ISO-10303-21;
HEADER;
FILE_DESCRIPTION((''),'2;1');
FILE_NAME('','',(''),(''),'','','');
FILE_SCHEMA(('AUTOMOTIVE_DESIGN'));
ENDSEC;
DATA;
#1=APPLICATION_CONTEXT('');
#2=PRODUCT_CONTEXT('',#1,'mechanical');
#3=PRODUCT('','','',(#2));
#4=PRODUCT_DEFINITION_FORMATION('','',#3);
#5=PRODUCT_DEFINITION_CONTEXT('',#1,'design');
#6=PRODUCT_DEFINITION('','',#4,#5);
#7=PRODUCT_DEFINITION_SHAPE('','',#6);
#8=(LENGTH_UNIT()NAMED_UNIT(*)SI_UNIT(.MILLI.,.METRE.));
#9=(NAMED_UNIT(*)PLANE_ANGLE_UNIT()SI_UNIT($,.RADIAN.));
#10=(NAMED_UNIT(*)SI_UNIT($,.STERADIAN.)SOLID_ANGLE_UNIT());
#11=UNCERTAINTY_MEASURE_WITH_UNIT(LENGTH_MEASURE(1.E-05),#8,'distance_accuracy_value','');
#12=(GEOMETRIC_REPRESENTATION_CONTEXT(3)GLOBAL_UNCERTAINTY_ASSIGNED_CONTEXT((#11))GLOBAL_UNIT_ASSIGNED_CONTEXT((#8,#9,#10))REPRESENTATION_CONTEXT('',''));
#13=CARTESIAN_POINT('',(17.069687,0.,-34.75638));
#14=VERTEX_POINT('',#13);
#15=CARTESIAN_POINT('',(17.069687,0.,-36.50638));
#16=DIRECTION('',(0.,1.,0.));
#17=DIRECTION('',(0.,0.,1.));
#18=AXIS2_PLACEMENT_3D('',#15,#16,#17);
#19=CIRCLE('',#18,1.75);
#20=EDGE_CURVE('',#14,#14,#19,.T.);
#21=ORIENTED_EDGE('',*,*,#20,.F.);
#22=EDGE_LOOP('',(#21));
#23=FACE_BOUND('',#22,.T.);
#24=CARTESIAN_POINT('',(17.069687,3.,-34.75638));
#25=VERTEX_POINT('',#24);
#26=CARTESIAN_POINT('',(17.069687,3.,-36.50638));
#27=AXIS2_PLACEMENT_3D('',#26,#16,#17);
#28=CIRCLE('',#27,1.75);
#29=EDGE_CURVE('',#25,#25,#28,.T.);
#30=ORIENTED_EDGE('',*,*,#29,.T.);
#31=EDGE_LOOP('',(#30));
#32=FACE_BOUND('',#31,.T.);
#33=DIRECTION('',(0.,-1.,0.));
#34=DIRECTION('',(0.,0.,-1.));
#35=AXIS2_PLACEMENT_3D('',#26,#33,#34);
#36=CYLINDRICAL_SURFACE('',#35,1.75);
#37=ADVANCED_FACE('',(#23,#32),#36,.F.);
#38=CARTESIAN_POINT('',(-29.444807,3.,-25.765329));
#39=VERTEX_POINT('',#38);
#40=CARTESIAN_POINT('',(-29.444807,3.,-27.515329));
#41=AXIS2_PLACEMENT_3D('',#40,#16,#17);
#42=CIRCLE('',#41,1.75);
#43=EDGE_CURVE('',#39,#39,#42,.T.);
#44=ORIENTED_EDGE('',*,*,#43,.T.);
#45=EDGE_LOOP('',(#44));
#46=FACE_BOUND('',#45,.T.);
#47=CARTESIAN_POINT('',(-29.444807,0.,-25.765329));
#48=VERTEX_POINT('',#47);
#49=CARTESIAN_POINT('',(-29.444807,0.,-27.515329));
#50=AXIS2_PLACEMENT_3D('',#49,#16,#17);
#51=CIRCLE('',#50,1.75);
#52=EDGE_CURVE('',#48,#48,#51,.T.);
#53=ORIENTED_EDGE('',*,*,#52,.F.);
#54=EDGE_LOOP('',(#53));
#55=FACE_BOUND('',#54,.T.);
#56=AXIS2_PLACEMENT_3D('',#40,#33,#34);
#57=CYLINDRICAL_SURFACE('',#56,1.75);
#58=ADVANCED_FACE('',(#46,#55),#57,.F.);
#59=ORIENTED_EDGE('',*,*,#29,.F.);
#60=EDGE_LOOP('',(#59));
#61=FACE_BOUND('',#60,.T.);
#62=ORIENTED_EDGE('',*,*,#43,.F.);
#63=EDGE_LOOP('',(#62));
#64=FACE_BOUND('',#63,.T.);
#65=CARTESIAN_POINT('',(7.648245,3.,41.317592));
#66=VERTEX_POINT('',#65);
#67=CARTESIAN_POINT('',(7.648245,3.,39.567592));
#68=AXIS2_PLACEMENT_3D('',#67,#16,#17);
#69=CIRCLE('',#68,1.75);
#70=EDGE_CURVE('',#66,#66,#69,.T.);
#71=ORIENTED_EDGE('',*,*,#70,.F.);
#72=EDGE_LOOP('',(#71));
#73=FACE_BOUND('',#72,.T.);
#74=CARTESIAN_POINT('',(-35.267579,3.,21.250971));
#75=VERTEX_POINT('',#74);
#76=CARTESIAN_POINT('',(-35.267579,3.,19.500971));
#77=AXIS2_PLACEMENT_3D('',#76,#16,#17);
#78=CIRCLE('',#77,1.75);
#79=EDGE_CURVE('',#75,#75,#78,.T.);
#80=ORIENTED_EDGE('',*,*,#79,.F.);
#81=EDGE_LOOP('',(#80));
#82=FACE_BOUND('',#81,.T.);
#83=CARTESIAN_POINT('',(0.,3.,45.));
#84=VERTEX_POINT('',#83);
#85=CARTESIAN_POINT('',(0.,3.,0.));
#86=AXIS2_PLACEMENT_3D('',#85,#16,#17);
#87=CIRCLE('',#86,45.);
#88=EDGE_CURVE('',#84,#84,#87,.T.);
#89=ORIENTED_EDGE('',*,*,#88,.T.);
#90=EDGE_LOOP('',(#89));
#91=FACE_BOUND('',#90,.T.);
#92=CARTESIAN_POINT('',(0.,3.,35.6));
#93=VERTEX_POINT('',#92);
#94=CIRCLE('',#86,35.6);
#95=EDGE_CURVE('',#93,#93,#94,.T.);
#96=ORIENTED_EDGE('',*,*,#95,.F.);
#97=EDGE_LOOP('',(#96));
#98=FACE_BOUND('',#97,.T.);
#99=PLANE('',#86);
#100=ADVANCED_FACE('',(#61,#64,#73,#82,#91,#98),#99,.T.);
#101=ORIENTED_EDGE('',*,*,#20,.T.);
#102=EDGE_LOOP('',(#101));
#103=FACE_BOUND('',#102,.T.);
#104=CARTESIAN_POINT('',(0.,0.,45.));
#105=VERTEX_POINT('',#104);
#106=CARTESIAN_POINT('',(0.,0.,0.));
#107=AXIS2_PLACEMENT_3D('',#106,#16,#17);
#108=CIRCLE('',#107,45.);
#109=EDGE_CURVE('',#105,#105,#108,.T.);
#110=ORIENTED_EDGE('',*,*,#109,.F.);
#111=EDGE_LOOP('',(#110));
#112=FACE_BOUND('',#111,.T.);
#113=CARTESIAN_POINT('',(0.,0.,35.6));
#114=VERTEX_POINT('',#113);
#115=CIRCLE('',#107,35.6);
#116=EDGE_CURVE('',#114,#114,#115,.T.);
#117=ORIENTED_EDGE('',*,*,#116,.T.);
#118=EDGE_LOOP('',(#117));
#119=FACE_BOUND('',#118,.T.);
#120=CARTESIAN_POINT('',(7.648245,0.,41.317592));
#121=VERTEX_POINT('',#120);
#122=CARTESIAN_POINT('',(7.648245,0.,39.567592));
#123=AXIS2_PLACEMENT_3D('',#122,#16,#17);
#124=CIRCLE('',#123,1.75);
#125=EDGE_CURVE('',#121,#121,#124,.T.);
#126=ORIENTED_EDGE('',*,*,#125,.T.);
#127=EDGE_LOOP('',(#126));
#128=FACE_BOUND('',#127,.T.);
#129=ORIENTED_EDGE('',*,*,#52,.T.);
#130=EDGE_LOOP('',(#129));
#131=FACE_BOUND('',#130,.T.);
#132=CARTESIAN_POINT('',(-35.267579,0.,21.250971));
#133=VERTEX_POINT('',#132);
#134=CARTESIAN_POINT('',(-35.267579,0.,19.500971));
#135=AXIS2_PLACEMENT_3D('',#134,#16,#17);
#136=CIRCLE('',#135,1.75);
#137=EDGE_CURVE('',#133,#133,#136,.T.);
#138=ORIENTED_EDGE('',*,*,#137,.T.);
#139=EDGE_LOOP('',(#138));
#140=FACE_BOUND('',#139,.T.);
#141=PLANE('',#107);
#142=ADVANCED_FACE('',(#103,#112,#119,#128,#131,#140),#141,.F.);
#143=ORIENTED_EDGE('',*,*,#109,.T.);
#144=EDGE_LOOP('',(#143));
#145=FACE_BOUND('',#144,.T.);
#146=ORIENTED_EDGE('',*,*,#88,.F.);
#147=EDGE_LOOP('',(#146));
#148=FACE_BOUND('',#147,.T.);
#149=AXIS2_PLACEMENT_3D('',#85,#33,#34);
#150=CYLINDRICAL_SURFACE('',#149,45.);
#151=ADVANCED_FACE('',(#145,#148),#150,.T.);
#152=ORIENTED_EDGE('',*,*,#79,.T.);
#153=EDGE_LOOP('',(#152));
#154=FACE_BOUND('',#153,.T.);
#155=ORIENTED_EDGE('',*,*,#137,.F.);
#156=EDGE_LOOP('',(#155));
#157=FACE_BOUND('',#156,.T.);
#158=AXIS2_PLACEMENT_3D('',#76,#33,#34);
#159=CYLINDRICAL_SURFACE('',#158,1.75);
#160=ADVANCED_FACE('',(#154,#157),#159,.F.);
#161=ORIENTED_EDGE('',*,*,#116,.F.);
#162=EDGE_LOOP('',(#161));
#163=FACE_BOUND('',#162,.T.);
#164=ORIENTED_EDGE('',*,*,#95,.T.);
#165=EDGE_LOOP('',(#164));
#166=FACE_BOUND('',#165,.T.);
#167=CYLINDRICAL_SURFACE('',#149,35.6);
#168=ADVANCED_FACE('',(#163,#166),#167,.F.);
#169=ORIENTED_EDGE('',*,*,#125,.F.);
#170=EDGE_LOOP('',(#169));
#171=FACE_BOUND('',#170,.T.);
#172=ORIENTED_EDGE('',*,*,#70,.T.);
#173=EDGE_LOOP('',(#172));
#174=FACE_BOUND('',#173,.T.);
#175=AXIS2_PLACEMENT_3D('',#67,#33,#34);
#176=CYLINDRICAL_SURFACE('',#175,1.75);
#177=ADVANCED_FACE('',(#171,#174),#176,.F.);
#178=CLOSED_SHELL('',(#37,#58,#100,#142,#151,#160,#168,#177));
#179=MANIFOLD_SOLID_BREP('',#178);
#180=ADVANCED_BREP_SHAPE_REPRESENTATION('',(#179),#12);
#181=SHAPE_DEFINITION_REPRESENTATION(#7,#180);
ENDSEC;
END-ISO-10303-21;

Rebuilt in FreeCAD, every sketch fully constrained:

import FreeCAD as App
import Part
import Sketcher

doc = App.newDocument("Part")
body = doc.addObject("PartDesign::Body", "Body")

# Sketch on XZ plane
sketch1 = doc.addObject("Sketcher::SketchObject", "Sketch")
body.addObject(sketch1)
sketch1.AttachmentSupport = (doc.XZ_Plane, [""])
sketch1.MapMode = "FlatFace"
sketch1.addGeometry([
    Part.Circle(App.Vector(0, 0, 0), App.Vector(0, 0, 1), 45),  # 0
    Part.Circle(App.Vector(-29.444807, -27.515329, 0), App.Vector(0, 0, 1), 1.75),  # 1
    Part.Circle(App.Vector(-35.267579, 19.500971, 0), App.Vector(0, 0, 1), 1.75),  # 2
    Part.Circle(App.Vector(17.069687, -36.50638, 0), App.Vector(0, 0, 1), 1.75),  # 3
    Part.Circle(App.Vector(0, 0, 0), App.Vector(0, 0, 1), 35.6),  # 4
    Part.Circle(App.Vector(7.648245, 39.567592, 0), App.Vector(0, 0, 1), 1.75),  # 5
], False)
sketch1.addConstraint([
    Sketcher.Constraint("Coincident", 0, 3, -1, 1),
    Sketcher.Constraint("Coincident", 4, 3, -1, 1),
    Sketcher.Constraint("Equal", 1, 2),
    Sketcher.Constraint("Equal", 2, 3),
    Sketcher.Constraint("Equal", 3, 5),
    Sketcher.Constraint("Diameter", 0, 90.0),
    Sketcher.Constraint("Diameter", 1, 3.5),
    Sketcher.Constraint("Diameter", 4, 71.2),
    Sketcher.Constraint("DistanceY", 1, 3, 2, 3, 47.0163),
    Sketcher.Constraint("DistanceY", 1, 3, -1, 1, 27.515329),
    Sketcher.Constraint("DistanceX", 2, 3, -1, 1, 35.267579),
    Sketcher.Constraint("DistanceY", 3, 3, -1, 1, 36.50638),
    Sketcher.Constraint("DistanceX", 2, 3, 1, 3, 5.822772),
    Sketcher.Constraint("DistanceY", 2, 3, 5, 3, 20.066621),
    Sketcher.Constraint("DistanceX", 1, 3, 5, 3, 37.093052),
    Sketcher.Constraint("DistanceX", -1, 1, 3, 3, 17.069687),
])
pad1 = doc.addObject("PartDesign::Pad", "Pad")
body.addObject(pad1)
pad1.Profile = sketch1
pad1.Length = 3
pad1.Reversed = True

doc.recompute()
